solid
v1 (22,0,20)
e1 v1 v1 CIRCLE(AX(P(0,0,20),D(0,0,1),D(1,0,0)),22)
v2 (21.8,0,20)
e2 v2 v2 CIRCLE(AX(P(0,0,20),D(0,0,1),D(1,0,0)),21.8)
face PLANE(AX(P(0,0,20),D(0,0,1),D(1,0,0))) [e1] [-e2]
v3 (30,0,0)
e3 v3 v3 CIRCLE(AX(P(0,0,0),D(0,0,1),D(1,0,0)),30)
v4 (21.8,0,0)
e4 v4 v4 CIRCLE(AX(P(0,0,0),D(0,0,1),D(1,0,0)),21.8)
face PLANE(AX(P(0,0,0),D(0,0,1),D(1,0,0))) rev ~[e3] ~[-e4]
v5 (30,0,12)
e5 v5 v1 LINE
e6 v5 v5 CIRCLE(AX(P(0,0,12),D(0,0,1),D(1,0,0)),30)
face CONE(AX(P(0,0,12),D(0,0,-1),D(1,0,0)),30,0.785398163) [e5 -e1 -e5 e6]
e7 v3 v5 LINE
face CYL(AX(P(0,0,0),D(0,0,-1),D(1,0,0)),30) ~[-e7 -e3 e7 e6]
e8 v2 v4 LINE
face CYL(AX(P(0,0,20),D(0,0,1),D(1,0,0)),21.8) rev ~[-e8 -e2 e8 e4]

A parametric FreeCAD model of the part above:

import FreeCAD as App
import Part
import Sketcher


def edges_at(feature, points):
    """Names of the edges that pass closest to the given points."""
    edges = feature.Shape.Edges
    near = lambda p: min(range(len(edges)), key=lambda i: edges[i].distToShape(Part.Vertex(*p))[0])
    return sorted({f"Edge{near(p) + 1}" for p in points})

doc = App.newDocument("Part")
body = doc.addObject("PartDesign::Body", "Body")

# Sketch on XY plane
sketch1 = doc.addObject("Sketcher::SketchObject", "Sketch")
body.addObject(sketch1)
sketch1.AttachmentSupport = (doc.XY_Plane, [""])
sketch1.MapMode = "FlatFace"
sketch1.addGeometry(Part.Circle(App.Vector(0, 0, 0), App.Vector(0, 0, 1), 30), False)
sketch1.addConstraint([
    Sketcher.Constraint("Coincident", 0, 3, -1, 1),
    Sketcher.Constraint("Diameter", 0, 60.0),
])
pad1 = doc.addObject("PartDesign::Pad", "Pad")
body.addObject(pad1)
pad1.Profile = sketch1
pad1.Length = 20

# Sketch on XY plane
sketch2 = doc.addObject("Sketcher::SketchObject", "Sketch001")
body.addObject(sketch2)
sketch2.AttachmentSupport = (doc.XY_Plane, [""])
sketch2.MapMode = "FlatFace"
sketch2.AttachmentOffset = App.Placement(App.Vector(0, 0, 20), App.Rotation())
sketch2.addGeometry(Part.Circle(App.Vector(0, 0, 0), App.Vector(0, 0, 1), 22), False)
sketch2.addConstraint([
    Sketcher.Constraint("Coincident", 0, 3, -1, 1),
    Sketcher.Constraint("Diameter", 0, 43.6),
])
pocket1 = doc.addObject("PartDesign::Pocket", "Pocket")
body.addObject(pocket1)
pocket1.Profile = sketch2
pocket1.Length = 25
doc.recompute()

chamfer = doc.addObject("PartDesign::Chamfer", "Chamfer")
body.addObject(chamfer)
chamfer.Base = (pocket1, edges_at(pocket1, [(-30, 0, 20)]))
chamfer.Size = 8

doc.recompute()
